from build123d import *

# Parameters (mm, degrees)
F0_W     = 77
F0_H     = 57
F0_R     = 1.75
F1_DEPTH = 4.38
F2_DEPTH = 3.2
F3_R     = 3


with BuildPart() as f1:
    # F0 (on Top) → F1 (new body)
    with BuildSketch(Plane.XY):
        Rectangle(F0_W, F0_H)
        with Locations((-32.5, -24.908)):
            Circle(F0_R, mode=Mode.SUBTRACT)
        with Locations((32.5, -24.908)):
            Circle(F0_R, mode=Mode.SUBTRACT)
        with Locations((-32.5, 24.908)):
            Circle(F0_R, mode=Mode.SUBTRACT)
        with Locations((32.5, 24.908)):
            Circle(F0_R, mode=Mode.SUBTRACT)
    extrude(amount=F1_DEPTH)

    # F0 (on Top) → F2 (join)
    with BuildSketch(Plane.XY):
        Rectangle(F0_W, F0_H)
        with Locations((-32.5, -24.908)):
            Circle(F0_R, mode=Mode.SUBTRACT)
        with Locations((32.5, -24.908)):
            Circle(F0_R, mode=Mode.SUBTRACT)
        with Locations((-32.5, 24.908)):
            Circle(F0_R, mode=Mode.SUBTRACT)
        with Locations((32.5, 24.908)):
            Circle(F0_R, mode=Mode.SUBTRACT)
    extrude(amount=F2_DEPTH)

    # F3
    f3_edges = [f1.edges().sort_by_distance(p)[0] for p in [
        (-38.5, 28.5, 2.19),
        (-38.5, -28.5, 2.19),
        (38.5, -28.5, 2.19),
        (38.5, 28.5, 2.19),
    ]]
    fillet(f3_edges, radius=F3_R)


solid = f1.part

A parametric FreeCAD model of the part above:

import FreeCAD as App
import Part
import Sketcher

V = App.Vector
Q = App.Units.Quantity


def edges_at(feature, points):
    """Names of the edges that pass closest to the given points."""
    edges = feature.Shape.Edges
    near = lambda p: min(range(len(edges)), key=lambda i: edges[i].distToShape(Part.Vertex(*p))[0])
    return sorted({f"Edge{near(p) + 1}" for p in points})

doc = App.newDocument("Part")
body = doc.addObject("PartDesign::Body", "Body")

# Sketch on XY plane
sketch1 = body.newObject("Sketcher::SketchObject", "Sketch")
sketch1.AttachmentSupport = (doc.getObject("XY_Plane"), [""])
sketch1.MapMode = "FlatFace"
sketch1.addGeometry([
    Part.LineSegment(V(-38.5, 28.5, 0), V(-38.5, -28.5, 0)),  # 0
    Part.LineSegment(V(-38.5, -28.5, 0), V(38.5, -28.5, 0)),  # 1
    Part.LineSegment(V(38.5, -28.5, 0), V(38.5, 28.5, 0)),  # 2
    Part.LineSegment(V(38.5, 28.5, 0), V(-38.5, 28.5, 0)),  # 3
    Part.Circle(V(-32.5, -24.9, 0), V(0, 0, 1), 1.8),  # 4
    Part.Circle(V(32.5, -24.9, 0), V(0, 0, 1), 1.8),  # 5
    Part.Circle(V(-32.5, 24.9, 0), V(0, 0, 1), 1.8),  # 6
    Part.Circle(V(32.5, 24.9, 0), V(0, 0, 1), 1.8),  # 7
], False)
sketch1.addConstraint([
    Sketcher.Constraint("Coincident", 0, 2, 1, 1),
    Sketcher.Constraint("Coincident", 1, 2, 2, 1),
    Sketcher.Constraint("Coincident", 2, 2, 3, 1),
    Sketcher.Constraint("Coincident", 3, 2, 0, 1),
    Sketcher.Constraint("Vertical", 0),
    Sketcher.Constraint("Horizontal", 1),
    Sketcher.Constraint("Vertical", 2),
    Sketcher.Constraint("Horizontal", 3),
    Sketcher.Constraint("Equal", 4, 5),
    Sketcher.Constraint("Equal", 5, 6),
    Sketcher.Constraint("Equal", 6, 7),
    Sketcher.Constraint("Symmetric", 5, 3, 6, 3, -1, 1),
    Sketcher.Constraint("Symmetric", 4, 3, 7, 3, -1, 1),
    Sketcher.Constraint("Symmetric", 0, 2, 2, 2, -1, 1),
    Sketcher.Constraint("Symmetric", 4, 3, 5, 3, -2),
    Sketcher.Constraint("Diameter", 4, Q("3.5 mm")),
    Sketcher.Constraint("DistanceX", 1, 1, 1, 2, Q("77 mm")),
    Sketcher.Constraint("DistanceY", 0, 2, 0, 1, Q("57 mm")),
    Sketcher.Constraint("DistanceX", 4, 3, 5, 3, Q("65 mm")),
    Sketcher.Constraint("DistanceY", 4, 3, -1, 1, Q("24.908 mm")),
])
pad1 = body.newObject("PartDesign::Pad", "Pad")
pad1.Profile = sketch1
pad1.Length = 4.38

# Sketch on XY plane
sketch2 = body.newObject("Sketcher::SketchObject", "Sketch001")
sketch2.AttachmentSupport = (doc.getObject("XY_Plane"), [""])
sketch2.MapMode = "FlatFace"
sketch2.addGeometry([
    Part.LineSegment(V(-38.5, 28.5, 0), V(-38.5, -28.5, 0)),  # 0
    Part.LineSegment(V(-38.5, -28.5, 0), V(38.5, -28.5, 0)),  # 1
    Part.LineSegment(V(38.5, -28.5, 0), V(38.5, 28.5, 0)),  # 2
    Part.LineSegment(V(38.5, 28.5, 0), V(-38.5, 28.5, 0)),  # 3
    Part.Circle(V(-32.5, -24.9, 0), V(0, 0, 1), 1.8),  # 4
    Part.Circle(V(32.5, -24.9, 0), V(0, 0, 1), 1.8),  # 5
    Part.Circle(V(-32.5, 24.9, 0), V(0, 0, 1), 1.8),  # 6
    Part.Circle(V(32.5, 24.9, 0), V(0, 0, 1), 1.8),  # 7
], False)
sketch2.addConstraint([
    Sketcher.Constraint("Coincident", 0, 2, 1, 1),
    Sketcher.Constraint("Coincident", 1, 2, 2, 1),
    Sketcher.Constraint("Coincident", 2, 2, 3, 1),
    Sketcher.Constraint("Coincident", 3, 2, 0, 1),
    Sketcher.Constraint("Vertical", 0),
    Sketcher.Constraint("Horizontal", 1),
    Sketcher.Constraint("Vertical", 2),
    Sketcher.Constraint("Horizontal", 3),
    Sketcher.Constraint("Equal", 4, 5),
    Sketcher.Constraint("Equal", 5, 6),
    Sketcher.Constraint("Equal", 6, 7),
    Sketcher.Constraint("Symmetric", 5, 3, 6, 3, -1, 1),
    Sketcher.Constraint("Symmetric", 4, 3, 7, 3, -1, 1),
    Sketcher.Constraint("Symmetric", 0, 2, 2, 2, -1, 1),
    Sketcher.Constraint("Symmetric", 4, 3, 5, 3, -2),
    Sketcher.Constraint("Diameter", 4, Q("3.5 mm")),
    Sketcher.Constraint("DistanceX", 1, 1, 1, 2, Q("77 mm")),
    Sketcher.Constraint("DistanceY", 0, 2, 0, 1, Q("57 mm")),
    Sketcher.Constraint("DistanceX", 4, 3, 5, 3, Q("65 mm")),
    Sketcher.Constraint("DistanceY", 4, 3, -1, 1, Q("24.908 mm")),
])
pad2 = body.newObject("PartDesign::Pad", "Pad001")
pad2.Profile = sketch2
pad2.Length = 3.2
doc.recompute()

fillet = body.newObject("PartDesign::Fillet", "Fillet")
fillet.Base = (pad2, edges_at(pad2, [
    (-38.5, 28.5, 2.19),
    (-38.5, -28.5, 2.19),
    (38.5, -28.5, 2.19),
    (38.5, 28.5, 2.19),
]))
fillet.Radius = 3

doc.recompute()
